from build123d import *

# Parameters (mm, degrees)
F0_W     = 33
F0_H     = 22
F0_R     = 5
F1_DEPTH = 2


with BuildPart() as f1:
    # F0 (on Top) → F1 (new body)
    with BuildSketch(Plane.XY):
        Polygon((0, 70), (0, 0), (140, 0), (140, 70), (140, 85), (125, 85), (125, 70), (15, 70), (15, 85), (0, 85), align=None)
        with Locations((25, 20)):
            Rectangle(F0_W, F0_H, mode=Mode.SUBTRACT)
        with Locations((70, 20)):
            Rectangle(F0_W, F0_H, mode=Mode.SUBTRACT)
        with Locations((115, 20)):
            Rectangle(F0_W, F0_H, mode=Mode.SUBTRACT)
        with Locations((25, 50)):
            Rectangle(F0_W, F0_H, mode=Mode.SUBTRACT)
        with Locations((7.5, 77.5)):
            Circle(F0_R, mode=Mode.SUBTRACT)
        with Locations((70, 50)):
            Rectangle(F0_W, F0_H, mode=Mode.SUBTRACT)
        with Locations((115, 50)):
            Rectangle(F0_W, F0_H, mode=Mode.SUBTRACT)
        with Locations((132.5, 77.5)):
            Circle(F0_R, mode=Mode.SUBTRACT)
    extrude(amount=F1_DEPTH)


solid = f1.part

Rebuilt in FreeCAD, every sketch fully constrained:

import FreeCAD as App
import Part
import Sketcher

V = App.Vector


def add_polygon(sketch, points):
    """Adds a closed chain of lines whose ends are joined by coincident constraints."""
    first, n = sketch.GeometryCount, len(points)
    for a, b in zip(points, points[1:] + points[:1]):
        sketch.addGeometry(Part.LineSegment(App.Vector(*a, 0), App.Vector(*b, 0)), False)
    for i in range(n):
        sketch.addConstraint(Sketcher.Constraint("Coincident", first + i, 2, first + (i + 1) % n, 1))

doc = App.newDocument("Part")
body = doc.addObject("PartDesign::Body", "Body")

# Sketch on XY plane
sketch1 = body.newObject("Sketcher::SketchObject", "Sketch")
sketch1.AttachmentSupport = (doc.getObject("XY_Plane"), [""])
sketch1.MapMode = "FlatFace"
add_polygon(sketch1, [(0, 0), (140, 0), (140, 85), (125, 85), (125, 70), (15, 70), (15, 85), (0, 85)])  # lines 0-7
add_polygon(sketch1, [(42, 9), (8, 9), (8, 31), (42, 31)])  # lines 8-11
add_polygon(sketch1, [(86, 9), (54, 9), (54, 31), (86, 31)])  # lines 12-15
add_polygon(sketch1, [(132, 9), (98, 9), (98, 31), (132, 31)])  # lines 16-19
add_polygon(sketch1, [(42, 39), (8, 39), (8, 61), (42, 61)])  # lines 20-23
sketch1.addGeometry(Part.Circle(V(8, 78, 0), V(0, 0, 1), 5), False)  # 24
add_polygon(sketch1, [(86, 39), (54, 39), (54, 61), (86, 61)])  # lines 25-28
add_polygon(sketch1, [(132, 39), (98, 39), (98, 61), (132, 61)])  # lines 29-32
sketch1.addGeometry(Part.Circle(V(132, 78, 0), V(0, 0, 1), 5), False)  # 33
sketch1.addConstraint(Sketcher.Constraint("Horizontal", 0))
sketch1.addConstraint(Sketcher.Constraint("Vertical", 1))
sketch1.addConstraint(Sketcher.Constraint("Horizontal", 2))
sketch1.addConstraint(Sketcher.Constraint("Vertical", 3))
sketch1.addConstraint(Sketcher.Constraint("Horizontal", 4))
sketch1.addConstraint(Sketcher.Constraint("Vertical", 5))
sketch1.addConstraint(Sketcher.Constraint("Horizontal", 6))
sketch1.addConstraint(Sketcher.Constraint("Vertical", 7))
sketch1.addConstraint(Sketcher.Constraint("Horizontal", 8))
sketch1.addConstraint(Sketcher.Constraint("Vertical", 9))
sketch1.addConstraint(Sketcher.Constraint("Horizontal", 10))
sketch1.addConstraint(Sketcher.Constraint("Vertical", 11))
sketch1.addConstraint(Sketcher.Constraint("Horizontal", 12))
sketch1.addConstraint(Sketcher.Constraint("Vertical", 13))
sketch1.addConstraint(Sketcher.Constraint("Horizontal", 14))
sketch1.addConstraint(Sketcher.Constraint("Vertical", 15))
sketch1.addConstraint(Sketcher.Constraint("Horizontal", 16))
sketch1.addConstraint(Sketcher.Constraint("Vertical", 17))
sketch1.addConstraint(Sketcher.Constraint("Horizontal", 18))
sketch1.addConstraint(Sketcher.Constraint("Vertical", 19))
sketch1.addConstraint(Sketcher.Constraint("Horizontal", 20))
sketch1.addConstraint(Sketcher.Constraint("Vertical", 21))
sketch1.addConstraint(Sketcher.Constraint("Horizontal", 22))
sketch1.addConstraint(Sketcher.Constraint("Vertical", 23))
sketch1.addConstraint(Sketcher.Constraint("Horizontal", 25))
sketch1.addConstraint(Sketcher.Constraint("Vertical", 26))
sketch1.addConstraint(Sketcher.Constraint("Horizontal", 27))
sketch1.addConstraint(Sketcher.Constraint("Vertical", 28))
sketch1.addConstraint(Sketcher.Constraint("Horizontal", 29))
sketch1.addConstraint(Sketcher.Constraint("Vertical", 30))
sketch1.addConstraint(Sketcher.Constraint("Horizontal", 31))
sketch1.addConstraint(Sketcher.Constraint("Vertical", 32))
sketch1.addConstraint(Sketcher.Constraint("Coincident", 7, 2, -1, 1))
sketch1.addConstraint(Sketcher.Constraint("Equal", 24, 33))
sketch1.addConstraint(Sketcher.Constraint("Horizontal", 24, 3, 33, 3))
sketch1.addConstraint(Sketcher.Constraint("Horizontal", 2, 2, 5, 2))
sketch1.addConstraint(Sketcher.Constraint("Horizontal", 11, 2, 12, 2))
sketch1.addConstraint(Sketcher.Constraint("Horizontal", 10, 2, 13, 2))
sketch1.addConstraint(Sketcher.Constraint("Horizontal", 15, 2, 16, 2))
sketch1.addConstraint(Sketcher.Constraint("Horizontal", 14, 2, 17, 2))
sketch1.addConstraint(Sketcher.Constraint("Horizontal", 23, 2, 25, 2))
sketch1.addConstraint(Sketcher.Constraint("Horizontal", 22, 2, 26, 2))
sketch1.addConstraint(Sketcher.Constraint("Horizontal", 28, 2, 29, 2))
sketch1.addConstraint(Sketcher.Constraint("Horizontal", 27, 2, 30, 2))
sketch1.addConstraint(Sketcher.Constraint("Vertical", 9, 2, 20, 2))
sketch1.addConstraint(Sketcher.Constraint("Vertical", 11, 2, 22, 2))
sketch1.addConstraint(Sketcher.Constraint("Vertical", 13, 2, 25, 2))
sketch1.addConstraint(Sketcher.Constraint("Vertical", 15, 2, 27, 2))
sketch1.addConstraint(Sketcher.Constraint("Vertical", 17, 2, 29, 2))
sketch1.addConstraint(Sketcher.Constraint("Vertical", 19, 2, 31, 2))
sketch1.addConstraint(Sketcher.Constraint("Equal", 2, 6))
sketch1.addConstraint(Sketcher.Constraint("Equal", 10, 12))
sketch1.addConstraint(Sketcher.Constraint("Equal", 14, 16))
sketch1.addConstraint(Sketcher.Constraint("Equal", 6, 3))
sketch1.addConstraint(Sketcher.Constraint("Equal", 19, 21))
sketch1.addConstraint(Sketcher.Constraint("Diameter", 24, 10.0))
sketch1.addConstraint(Sketcher.Constraint("DistanceX", 0, 1, 0, 2, 140.0))
sketch1.addConstraint(Sketcher.Constraint("DistanceX", 2, 2, 2, 1, 15.0))
sketch1.addConstraint(Sketcher.Constraint("DistanceX", 8, 2, 8, 1, 33.0))
sketch1.addConstraint(Sketcher.Constraint("DistanceY", 1, 1, 1, 2, 85.0))
sketch1.addConstraint(Sketcher.Constraint("DistanceY", 9, 1, 9, 2, 22.0))
sketch1.addConstraint(Sketcher.Constraint("DistanceY", -1, 1, 8, 2, 9.0))
sketch1.addConstraint(Sketcher.Constraint("DistanceY", -1, 1, 20, 2, 39.0))
sketch1.addConstraint(Sketcher.Constraint("DistanceX", 24, 3, 33, 3, 125.0))
sketch1.addConstraint(Sketcher.Constraint("DistanceX", 24, 3, 8, 2, 1.0))
sketch1.addConstraint(Sketcher.Constraint("DistanceX", 11, 2, 12, 2, 12.0))
sketch1.addConstraint(Sketcher.Constraint("DistanceX", 15, 2, 16, 2, 12.0))
sketch1.addConstraint(Sketcher.Constraint("DistanceX", -1, 1, 24, 3, 7.5))
sketch1.addConstraint(Sketcher.Constraint("DistanceY", -1, 1, 24, 3, 77.5))
pad1 = body.newObject("PartDesign::Pad", "Pad")
pad1.Profile = sketch1
pad1.Length = 2

doc.recompute()
